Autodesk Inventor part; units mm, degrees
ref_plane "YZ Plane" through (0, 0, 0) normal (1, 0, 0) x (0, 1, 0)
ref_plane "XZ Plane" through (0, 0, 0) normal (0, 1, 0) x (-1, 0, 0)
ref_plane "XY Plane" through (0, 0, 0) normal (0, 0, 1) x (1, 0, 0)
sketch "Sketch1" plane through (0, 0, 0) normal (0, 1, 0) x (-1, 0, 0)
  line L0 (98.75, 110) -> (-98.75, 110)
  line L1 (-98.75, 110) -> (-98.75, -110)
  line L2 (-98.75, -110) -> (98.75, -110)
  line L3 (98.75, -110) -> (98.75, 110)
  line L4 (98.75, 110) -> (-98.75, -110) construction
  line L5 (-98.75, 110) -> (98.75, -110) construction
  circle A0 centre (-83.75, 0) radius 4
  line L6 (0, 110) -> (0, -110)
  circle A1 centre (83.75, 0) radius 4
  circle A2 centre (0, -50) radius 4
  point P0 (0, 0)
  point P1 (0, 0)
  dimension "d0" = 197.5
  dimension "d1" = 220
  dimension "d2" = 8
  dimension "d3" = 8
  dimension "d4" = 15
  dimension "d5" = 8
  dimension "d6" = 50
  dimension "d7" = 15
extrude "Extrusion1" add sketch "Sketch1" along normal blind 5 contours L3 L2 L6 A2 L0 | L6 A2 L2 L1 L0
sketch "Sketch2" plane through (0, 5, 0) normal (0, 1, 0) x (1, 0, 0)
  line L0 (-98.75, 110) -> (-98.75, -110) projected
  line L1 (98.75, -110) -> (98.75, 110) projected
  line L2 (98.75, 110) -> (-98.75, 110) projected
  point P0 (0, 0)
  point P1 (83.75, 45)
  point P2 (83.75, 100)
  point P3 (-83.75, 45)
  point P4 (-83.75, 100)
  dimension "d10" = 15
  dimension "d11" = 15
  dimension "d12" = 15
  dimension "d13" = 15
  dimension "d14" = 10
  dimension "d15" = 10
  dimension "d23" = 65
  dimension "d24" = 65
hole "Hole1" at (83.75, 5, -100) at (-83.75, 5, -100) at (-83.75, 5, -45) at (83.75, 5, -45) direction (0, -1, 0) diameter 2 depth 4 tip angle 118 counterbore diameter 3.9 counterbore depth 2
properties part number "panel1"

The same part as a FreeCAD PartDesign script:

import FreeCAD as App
import Part
import Sketcher

V = App.Vector
Q = App.Units.Quantity

doc = App.newDocument("Part")
body = doc.addObject("PartDesign::Body", "Body")

# Sketch on XZ plane
sketch1 = doc.addObject("Sketcher::SketchObject", "Sketch")
body.addObject(sketch1)
sketch1.AttachmentSupport = (doc.XZ_Plane, [""])
sketch1.MapMode = "FlatFace"
sketch1.addGeometry([
    Part.LineSegment(V(-98.8, -110, 0), V(-98.8, 110, 0)),  # 0
    Part.LineSegment(V(-98.8, 110, 0), V(98.8, 110, 0)),  # 1
    Part.LineSegment(V(98.8, 110, 0), V(98.8, -110, 0)),  # 2
    Part.LineSegment(V(98.8, -110, 0), V(-98.8, -110, 0)),  # 3
    Part.Circle(V(0, -50, 0), V(0, 0, 1), 4),  # 4
    Part.Circle(V(-83.8, 0, 0), V(0, 0, 1), 4),  # 5
    Part.Circle(V(83.8, 0, 0), V(0, 0, 1), 4),  # 6
], False)
sketch1.addConstraint([
    Sketcher.Constraint("Coincident", 0, 2, 1, 1),
    Sketcher.Constraint("Coincident", 1, 2, 2, 1),
    Sketcher.Constraint("Coincident", 2, 2, 3, 1),
    Sketcher.Constraint("Coincident", 3, 2, 0, 1),
    Sketcher.Constraint("Vertical", 0),
    Sketcher.Constraint("Horizontal", 1),
    Sketcher.Constraint("Vertical", 2),
    Sketcher.Constraint("Horizontal", 3),
    Sketcher.Constraint("Equal", 4, 5),
    Sketcher.Constraint("Equal", 5, 6),
    Sketcher.Constraint("Symmetric", 5, 3, 6, 3, -1, 1),
    Sketcher.Constraint("Symmetric", 0, 2, 2, 2, -1, 1),
    Sketcher.Constraint("PointOnObject", 4, 3, -2),
    Sketcher.Constraint("PointOnObject", 5, 3, -1),
    Sketcher.Constraint("Diameter", 4, Q("8 mm")),
    Sketcher.Constraint("DistanceY", 0, 1, 0, 2, Q("220 mm")),
    Sketcher.Constraint("DistanceX", 1, 1, 1, 2, Q("197.5 mm")),
    Sketcher.Constraint("DistanceY", 4, 3, -1, 1, Q("50 mm")),
    Sketcher.Constraint("DistanceX", 0, 2, 5, 3, Q("15 mm")),
])
pad1 = doc.addObject("PartDesign::Pad", "Pad")
body.addObject(pad1)
pad1.Profile = sketch1
pad1.Length = 5
pad1.Reversed = True

# Sketch on XZ plane
sketch2 = doc.addObject("Sketcher::SketchObject", "Sketch001")
body.addObject(sketch2)
sketch2.AttachmentSupport = (doc.XZ_Plane, [""])
sketch2.MapMode = "FlatFace"
sketch2.AttachmentOffset = App.Placement(V(0, 0, -5), App.Rotation())
sketch2.addGeometry([
    Part.Circle(V(83.8, -100, 0), V(0, 0, 1), 1),
    Part.Circle(V(-83.8, -100, 0), V(0, 0, 1), 1),
    Part.Circle(V(-83.8, -45, 0), V(0, 0, 1), 1),
    Part.Circle(V(83.8, -45, 0), V(0, 0, 1), 1),
], False)
sketch2.addConstraint([
    Sketcher.Constraint("Equal", 0, 1),
    Sketcher.Constraint("Equal", 1, 2),
    Sketcher.Constraint("Equal", 2, 3),
    Sketcher.Constraint("Symmetric", 0, 3, 1, 3, -2),
    Sketcher.Constraint("Symmetric", 2, 3, 3, 3, -2),
    Sketcher.Constraint("Vertical", 1, 3, 2, 3),
    Sketcher.Constraint("Diameter", 0, Q("2 mm")),
    Sketcher.Constraint("DistanceY", 0, 3, -1, 1, Q("100 mm")),
    Sketcher.Constraint("DistanceY", 2, 3, -1, 1, Q("45 mm")),
    Sketcher.Constraint("DistanceX", 1, 3, 0, 3, Q("167.5 mm")),
])
doc.recompute()
hole = doc.addObject("PartDesign::Hole", "Hole")
body.addObject(hole)
hole.Profile = sketch2
hole.ThreadType = "None"
hole.Diameter = 2
hole.DepthType = "Dimension"
hole.Depth = 4
hole.DrillPoint = "Angled"
hole.DrillPointAngle = 118
hole.HoleCutType = "Counterbore"
hole.HoleCutDiameter = 3.9
hole.HoleCutDepth = 2
hole.Reversed = True

doc.recompute()
